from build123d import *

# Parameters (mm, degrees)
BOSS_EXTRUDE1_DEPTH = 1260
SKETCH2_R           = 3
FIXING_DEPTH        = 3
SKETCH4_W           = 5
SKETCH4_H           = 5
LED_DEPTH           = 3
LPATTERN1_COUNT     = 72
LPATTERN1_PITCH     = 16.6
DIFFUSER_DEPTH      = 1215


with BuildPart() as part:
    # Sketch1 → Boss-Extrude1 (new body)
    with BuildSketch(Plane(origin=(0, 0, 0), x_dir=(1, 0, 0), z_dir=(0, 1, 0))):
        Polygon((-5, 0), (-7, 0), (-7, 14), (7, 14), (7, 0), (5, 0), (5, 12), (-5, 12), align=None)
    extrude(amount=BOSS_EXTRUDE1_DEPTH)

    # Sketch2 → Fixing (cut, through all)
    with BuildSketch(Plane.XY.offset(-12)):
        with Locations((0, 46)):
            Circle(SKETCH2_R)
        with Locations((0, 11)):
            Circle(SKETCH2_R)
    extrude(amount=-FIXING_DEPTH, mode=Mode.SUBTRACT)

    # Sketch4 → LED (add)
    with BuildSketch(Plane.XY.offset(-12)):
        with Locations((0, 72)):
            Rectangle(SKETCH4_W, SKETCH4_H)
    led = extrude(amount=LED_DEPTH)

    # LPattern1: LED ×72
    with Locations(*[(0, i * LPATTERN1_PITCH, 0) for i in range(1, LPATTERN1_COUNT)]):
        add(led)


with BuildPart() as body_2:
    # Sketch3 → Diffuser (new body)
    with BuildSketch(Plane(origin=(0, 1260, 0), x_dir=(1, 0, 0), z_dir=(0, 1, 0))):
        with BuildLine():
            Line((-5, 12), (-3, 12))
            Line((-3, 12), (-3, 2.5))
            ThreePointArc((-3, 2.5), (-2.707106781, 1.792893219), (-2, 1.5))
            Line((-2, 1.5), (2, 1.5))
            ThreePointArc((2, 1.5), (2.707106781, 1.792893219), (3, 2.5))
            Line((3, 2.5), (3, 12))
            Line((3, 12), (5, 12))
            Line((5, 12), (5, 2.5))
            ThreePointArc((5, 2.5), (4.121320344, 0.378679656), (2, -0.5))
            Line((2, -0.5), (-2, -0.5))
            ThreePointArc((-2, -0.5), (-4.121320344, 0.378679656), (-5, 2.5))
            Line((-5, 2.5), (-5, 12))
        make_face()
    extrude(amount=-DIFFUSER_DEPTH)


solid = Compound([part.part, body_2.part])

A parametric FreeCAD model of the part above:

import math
import FreeCAD as App
import Part
import Sketcher


def add_polygon(sketch, points):
    """Adds a closed chain of lines whose ends are joined by coincident constraints."""
    first, n = sketch.GeometryCount, len(points)
    for a, b in zip(points, points[1:] + points[:1]):
        sketch.addGeometry(Part.LineSegment(App.Vector(*a, 0), App.Vector(*b, 0)), False)
    for i in range(n):
        sketch.addConstraint(Sketcher.Constraint("Coincident", first + i, 2, first + (i + 1) % n, 1))

doc = App.newDocument("Part")
body = doc.addObject("PartDesign::Body", "Body")

# Sketch on XZ plane
sketch1 = body.newObject("Sketcher::SketchObject", "Sketch")
sketch1.AttachmentSupport = (doc.getObject("XZ_Plane"), [""])
sketch1.MapMode = "FlatFace"
add_polygon(sketch1, [(-7, 0), (-5, 0), (-5, -12), (5, -12), (5, 0), (7, 0), (7, -14), (-7, -14)])  # lines 0-7
sketch1.addConstraint(Sketcher.Constraint("Horizontal", 0))
sketch1.addConstraint(Sketcher.Constraint("Vertical", 1))
sketch1.addConstraint(Sketcher.Constraint("Horizontal", 2))
sketch1.addConstraint(Sketcher.Constraint("Vertical", 3))
sketch1.addConstraint(Sketcher.Constraint("Horizontal", 4))
sketch1.addConstraint(Sketcher.Constraint("Vertical", 5))
sketch1.addConstraint(Sketcher.Constraint("Horizontal", 6))
sketch1.addConstraint(Sketcher.Constraint("Vertical", 7))
sketch1.addConstraint(Sketcher.Constraint("Symmetric", 0, 2, 3, 2, -1, 1))
sketch1.addConstraint(Sketcher.Constraint("Symmetric", 4, 2, 7, 2, -2))
sketch1.addConstraint(Sketcher.Constraint("Equal", 6, 5))
sketch1.addConstraint(Sketcher.Constraint("DistanceX", 0, 1, 0, 2, 2.0))
sketch1.addConstraint(Sketcher.Constraint("DistanceX", 2, 1, 2, 2, 10.0))
sketch1.addConstraint(Sketcher.Constraint("DistanceY", 1, 2, 1, 1, 12.0))
pad1 = body.newObject("PartDesign::Pad", "Pad")
pad1.Profile = sketch1
pad1.Length = 1260
pad1.Reversed = True

# Sketch on XY plane
sketch2 = body.newObject("Sketcher::SketchObject", "Sketch001")
sketch2.AttachmentSupport = (doc.getObject("XY_Plane"), [""])
sketch2.MapMode = "FlatFace"
sketch2.AttachmentOffset = App.Placement(App.Vector(0, 0, -12), App.Rotation())
sketch2.addGeometry(Part.Circle(App.Vector(0, 46, 0), App.Vector(0, 0, 1), 3), False)
sketch2.addGeometry(Part.Circle(App.Vector(0, 11, 0), App.Vector(0, 0, 1), 3), False)
sketch2.addConstraint(Sketcher.Constraint("Equal", 0, 1))
sketch2.addConstraint(Sketcher.Constraint("PointOnObject", 0, 3, -2))
sketch2.addConstraint(Sketcher.Constraint("PointOnObject", 1, 3, -2))
sketch2.addConstraint(Sketcher.Constraint("Diameter", 0, 6.0))
sketch2.addConstraint(Sketcher.Constraint("DistanceY", -1, 1, 0, 3, 46.0))
sketch2.addConstraint(Sketcher.Constraint("DistanceY", -1, 1, 1, 3, 11.0))
pocket1 = body.newObject("PartDesign::Pocket", "Pocket")
pocket1.Profile = sketch2
pocket1.Type = "ThroughAll"

# Sketch on XY plane
sketch3 = body.newObject("Sketcher::SketchObject", "Sketch002")
sketch3.AttachmentSupport = (doc.getObject("XY_Plane"), [""])
sketch3.MapMode = "FlatFace"
sketch3.AttachmentOffset = App.Placement(App.Vector(0, 0, -12), App.Rotation())
add_polygon(sketch3, [(-2, 74), (-2, 70), (2, 70), (2, 74)])  # lines 0-3
sketch3.addConstraint(Sketcher.Constraint("Vertical", 0))
sketch3.addConstraint(Sketcher.Constraint("Horizontal", 1))
sketch3.addConstraint(Sketcher.Constraint("Vertical", 2))
sketch3.addConstraint(Sketcher.Constraint("Horizontal", 3))
sketch3.addConstraint(Sketcher.Constraint("Equal", 3, 0))
sketch3.addConstraint(Sketcher.Constraint("DistanceX", 1, 1, 1, 2, 5.0))
sketch3.addConstraint(Sketcher.Constraint("DistanceX", 0, 2, -1, 1, 2.5))
sketch3.addConstraint(Sketcher.Constraint("DistanceY", -1, 1, 0, 2, 69.5))
pad2 = body.newObject("PartDesign::Pad", "Pad001")
pad2.Profile = sketch3
pad2.Length = 3
doc.recompute()

linearpattern = body.newObject("PartDesign::LinearPattern", "LinearPattern")
linearpattern.Originals = [pad2]
linearpattern.Direction = (doc.getObject("Y_Axis"), [""])
linearpattern.Mode = "offset"
linearpattern.Offset = 16.6
linearpattern.Occurrences = 72
body.Tip = linearpattern
body2 = doc.addObject("PartDesign::Body", "Body001")

# Sketch on XZ plane
sketch4 = body2.newObject("Sketcher::SketchObject", "Sketch003")
sketch4.AttachmentSupport = (doc.getObject("XZ_Plane001"), [""])
sketch4.MapMode = "FlatFace"
sketch4.AttachmentOffset = App.Placement(App.Vector(0, 0, -1260), App.Rotation())
sketch4.addGeometry(Part.LineSegment(App.Vector(-3, -12, 0), App.Vector(-5, -12, 0)), False)
sketch4.addGeometry(Part.LineSegment(App.Vector(-5, -12, 0), App.Vector(-5, -2.5, 0)), False)
sketch4.addGeometry(Part.ArcOfCircle(Part.Circle(App.Vector(-2, -2.5, 0), App.Vector(0, 0, 1), 3), math.radians(90), math.radians(180)), False)
sketch4.addGeometry(Part.LineSegment(App.Vector(-2, 0.5, 0), App.Vector(2, 0.5, 0)), False)
sketch4.addGeometry(Part.ArcOfCircle(Part.Circle(App.Vector(2, -2.5, 0), App.Vector(0, 0, 1), 3), math.radians(0), math.radians(90)), False)
sketch4.addGeometry(Part.LineSegment(App.Vector(5, -2.5, 0), App.Vector(5, -12, 0)), False)
sketch4.addGeometry(Part.LineSegment(App.Vector(5, -12, 0), App.Vector(3, -12, 0)), False)
sketch4.addGeometry(Part.LineSegment(App.Vector(3, -12, 0), App.Vector(3, -2.5, 0)), False)
sketch4.addGeometry(Part.ArcOfCircle(Part.Circle(App.Vector(2, -2.5, 0), App.Vector(0, 0, 1), 1), math.radians(0), math.radians(90)), False)
sketch4.addGeometry(Part.LineSegment(App.Vector(2, -1.5, 0), App.Vector(-2, -1.5, 0)), False)
sketch4.addGeometry(Part.ArcOfCircle(Part.Circle(App.Vector(-2, -2.5, 0), App.Vector(0, 0, 1), 1), math.radians(90), math.radians(180)), False)
sketch4.addGeometry(Part.LineSegment(App.Vector(-3, -2.5, 0), App.Vector(-3, -12, 0)), False)
sketch4.addConstraint(Sketcher.Constraint("Coincident", 0, 2, 1, 1))
sketch4.addConstraint(Sketcher.Constraint("Tangent", 1, 2, 2, 2))
sketch4.addConstraint(Sketcher.Constraint("Tangent", 2, 1, 3, 1))
sketch4.addConstraint(Sketcher.Constraint("Tangent", 3, 2, 4, 2))
sketch4.addConstraint(Sketcher.Constraint("Tangent", 4, 1, 5, 1))
sketch4.addConstraint(Sketcher.Constraint("Coincident", 5, 2, 6, 1))
sketch4.addConstraint(Sketcher.Constraint("Coincident", 6, 2, 7, 1))
sketch4.addConstraint(Sketcher.Constraint("Tangent", 7, 2, 8, 1))
sketch4.addConstraint(Sketcher.Constraint("Tangent", 8, 2, 9, 1))
sketch4.addConstraint(Sketcher.Constraint("Tangent", 9, 2, 10, 1))
sketch4.addConstraint(Sketcher.Constraint("Tangent", 10, 2, 11, 1))
sketch4.addConstraint(Sketcher.Constraint("Coincident", 11, 2, 0, 1))
sketch4.addConstraint(Sketcher.Constraint("Horizontal", 0))
sketch4.addConstraint(Sketcher.Constraint("Vertical", 1))
sketch4.addConstraint(Sketcher.Constraint("Horizontal", 3))
sketch4.addConstraint(Sketcher.Constraint("Vertical", 5))
sketch4.addConstraint(Sketcher.Constraint("Horizontal", 6))
sketch4.addConstraint(Sketcher.Constraint("Vertical", 7))
sketch4.addConstraint(Sketcher.Constraint("Horizontal", 9))
sketch4.addConstraint(Sketcher.Constraint("Vertical", 11))
sketch4.addConstraint(Sketcher.Constraint("Coincident", 8, 3, 4, 3))
sketch4.addConstraint(Sketcher.Constraint("Coincident", 10, 3, 2, 3))
sketch4.addConstraint(Sketcher.Constraint("Equal", 2, 4))
sketch4.addConstraint(Sketcher.Constraint("Symmetric", 0, 2, 5, 2, -2))
sketch4.addConstraint(Sketcher.Constraint("Radius", 2, 3.0))
sketch4.addConstraint(Sketcher.Constraint("Radius", 8, 1.0))
sketch4.addConstraint(Sketcher.Constraint("DistanceX", 3, 1, 3, 2, 4.0))
sketch4.addConstraint(Sketcher.Constraint("DistanceY", 1, 1, 1, 2, 9.5))
sketch4.addConstraint(Sketcher.Constraint("DistanceY", 0, 2, -1, 1, 12.0))
pad3 = body2.newObject("PartDesign::Pad", "Pad002")
pad3.Profile = sketch4
pad3.Length = 1215

doc.recompute()
